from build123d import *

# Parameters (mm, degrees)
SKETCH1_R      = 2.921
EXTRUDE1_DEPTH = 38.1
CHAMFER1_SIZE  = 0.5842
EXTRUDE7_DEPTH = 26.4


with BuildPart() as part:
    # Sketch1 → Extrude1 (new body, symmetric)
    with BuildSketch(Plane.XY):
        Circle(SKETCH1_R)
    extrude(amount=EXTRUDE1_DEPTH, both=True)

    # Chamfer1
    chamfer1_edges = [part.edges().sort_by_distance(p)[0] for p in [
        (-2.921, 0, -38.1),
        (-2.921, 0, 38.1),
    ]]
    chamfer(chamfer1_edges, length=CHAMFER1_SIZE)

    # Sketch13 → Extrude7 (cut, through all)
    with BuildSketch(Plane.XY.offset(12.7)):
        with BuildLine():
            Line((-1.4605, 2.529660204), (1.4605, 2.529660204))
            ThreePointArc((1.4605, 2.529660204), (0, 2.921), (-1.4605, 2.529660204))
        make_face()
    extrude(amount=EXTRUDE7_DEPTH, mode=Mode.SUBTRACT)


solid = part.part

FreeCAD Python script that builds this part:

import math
import FreeCAD as App
import Part
import Sketcher

V = App.Vector
Q = App.Units.Quantity


def edges_at(feature, points):
    """Names of the edges that pass closest to the given points."""
    edges = feature.Shape.Edges
    near = lambda p: min(range(len(edges)), key=lambda i: edges[i].distToShape(Part.Vertex(*p))[0])
    return sorted({f"Edge{near(p) + 1}" for p in points})

doc = App.newDocument("Part")
body = doc.addObject("PartDesign::Body", "Body")

# Sketch on XY plane
sketch1 = body.newObject("Sketcher::SketchObject", "Sketch")
sketch1.AttachmentSupport = (doc.getObject("XY_Plane"), [""])
sketch1.MapMode = "FlatFace"
sketch1.addGeometry(Part.Circle(V(0, 0, 0), V(0, 0, 1), 2.9), False)
sketch1.addConstraint([
    Sketcher.Constraint("Coincident", 0, 3, -1, 1),
    Sketcher.Constraint("Diameter", 0, Q("0.23 in")),
])
pad1 = body.newObject("PartDesign::Pad", "Pad")
pad1.Profile = sketch1
pad1.Length = Q("3 in")
pad1.Midplane = True
doc.recompute()

chamfer = body.newObject("PartDesign::Chamfer", "Chamfer")
chamfer.Base = (pad1, edges_at(pad1, [(-2.921, 0, -38.1), (-2.921, 0, 38.1)]))
chamfer.Size = Q("0.023 in")

# Sketch on XY plane
sketch2 = body.newObject("Sketcher::SketchObject", "Sketch001")
sketch2.AttachmentSupport = (doc.getObject("XY_Plane"), [""])
sketch2.MapMode = "FlatFace"
sketch2.AttachmentOffset = App.Placement(V(0, 0, 0.5 * 25.4), App.Rotation())
sketch2.addGeometry([
    Part.LineSegment(V(-1.5, 2.5, 0), V(1.5, 2.5, 0)),
    Part.ArcOfCircle(Part.Circle(V(0, 0, 0), V(0, 0, 1), 2.9), math.radians(60), math.radians(120)),
], False)
sketch2.addConstraint([
    Sketcher.Constraint("Coincident", 0, 1, 1, 2),
    Sketcher.Constraint("Coincident", 1, 1, 0, 2),
    Sketcher.Constraint("Horizontal", 0),
    Sketcher.Constraint("Coincident", 1, 3, -1, 1),
    Sketcher.Constraint("Radius", 1, Q("0.115 in")),
    Sketcher.Constraint("DistanceX", 0, 1, 0, 2, Q("0.115 in")),
])
pocket1 = body.newObject("PartDesign::Pocket", "Pocket")
pocket1.Profile = sketch2
pocket1.Type = "ThroughAll"
pocket1.Reversed = True

doc.recompute()
